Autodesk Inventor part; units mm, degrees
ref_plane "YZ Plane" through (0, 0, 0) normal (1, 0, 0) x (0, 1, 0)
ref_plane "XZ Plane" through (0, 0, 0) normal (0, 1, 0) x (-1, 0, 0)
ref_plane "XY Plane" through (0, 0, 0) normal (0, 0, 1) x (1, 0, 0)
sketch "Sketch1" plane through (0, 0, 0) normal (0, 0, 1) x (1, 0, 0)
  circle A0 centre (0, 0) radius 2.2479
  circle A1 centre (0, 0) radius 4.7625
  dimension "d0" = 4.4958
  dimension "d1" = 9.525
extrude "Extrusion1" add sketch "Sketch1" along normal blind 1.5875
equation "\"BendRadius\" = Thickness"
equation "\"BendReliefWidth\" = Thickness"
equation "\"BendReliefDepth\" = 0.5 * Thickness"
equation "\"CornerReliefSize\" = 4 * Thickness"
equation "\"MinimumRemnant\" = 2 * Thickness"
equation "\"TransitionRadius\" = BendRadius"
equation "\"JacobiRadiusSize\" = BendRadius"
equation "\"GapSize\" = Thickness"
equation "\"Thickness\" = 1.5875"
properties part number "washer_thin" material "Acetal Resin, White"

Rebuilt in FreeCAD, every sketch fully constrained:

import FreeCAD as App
import Part
import Sketcher

V = App.Vector
Q = App.Units.Quantity

doc = App.newDocument("Part")
body = doc.addObject("PartDesign::Body", "Body")

sketch1 = body.newObject("Sketcher::SketchObject", "Sketch")
sketch1.AttachmentSupport = (doc.getObject("XY_Plane"), [""])
sketch1.MapMode = "FlatFace"
sketch1.addGeometry(Part.Circle(V(0, 0, 0), V(0, 0, 1), 4.7625), False)
sketch1.addGeometry(Part.Circle(V(0, 0, 0), V(0, 0, 1), 2.2479), False)
sketch1.addConstraint(Sketcher.Constraint("Coincident", 0, 3, -1, 1))
sketch1.addConstraint(Sketcher.Constraint("Coincident", 1, 3, -1, 1))
sketch1.addConstraint(Sketcher.Constraint("Diameter", 0, Q("0.375 in")))
sketch1.addConstraint(Sketcher.Constraint("Diameter", 1, Q("0.177 in")))
pad1 = body.newObject("PartDesign::Pad", "Pad")
pad1.Profile = sketch1
pad1.Length = Q("0.0625 in")

doc.recompute()
